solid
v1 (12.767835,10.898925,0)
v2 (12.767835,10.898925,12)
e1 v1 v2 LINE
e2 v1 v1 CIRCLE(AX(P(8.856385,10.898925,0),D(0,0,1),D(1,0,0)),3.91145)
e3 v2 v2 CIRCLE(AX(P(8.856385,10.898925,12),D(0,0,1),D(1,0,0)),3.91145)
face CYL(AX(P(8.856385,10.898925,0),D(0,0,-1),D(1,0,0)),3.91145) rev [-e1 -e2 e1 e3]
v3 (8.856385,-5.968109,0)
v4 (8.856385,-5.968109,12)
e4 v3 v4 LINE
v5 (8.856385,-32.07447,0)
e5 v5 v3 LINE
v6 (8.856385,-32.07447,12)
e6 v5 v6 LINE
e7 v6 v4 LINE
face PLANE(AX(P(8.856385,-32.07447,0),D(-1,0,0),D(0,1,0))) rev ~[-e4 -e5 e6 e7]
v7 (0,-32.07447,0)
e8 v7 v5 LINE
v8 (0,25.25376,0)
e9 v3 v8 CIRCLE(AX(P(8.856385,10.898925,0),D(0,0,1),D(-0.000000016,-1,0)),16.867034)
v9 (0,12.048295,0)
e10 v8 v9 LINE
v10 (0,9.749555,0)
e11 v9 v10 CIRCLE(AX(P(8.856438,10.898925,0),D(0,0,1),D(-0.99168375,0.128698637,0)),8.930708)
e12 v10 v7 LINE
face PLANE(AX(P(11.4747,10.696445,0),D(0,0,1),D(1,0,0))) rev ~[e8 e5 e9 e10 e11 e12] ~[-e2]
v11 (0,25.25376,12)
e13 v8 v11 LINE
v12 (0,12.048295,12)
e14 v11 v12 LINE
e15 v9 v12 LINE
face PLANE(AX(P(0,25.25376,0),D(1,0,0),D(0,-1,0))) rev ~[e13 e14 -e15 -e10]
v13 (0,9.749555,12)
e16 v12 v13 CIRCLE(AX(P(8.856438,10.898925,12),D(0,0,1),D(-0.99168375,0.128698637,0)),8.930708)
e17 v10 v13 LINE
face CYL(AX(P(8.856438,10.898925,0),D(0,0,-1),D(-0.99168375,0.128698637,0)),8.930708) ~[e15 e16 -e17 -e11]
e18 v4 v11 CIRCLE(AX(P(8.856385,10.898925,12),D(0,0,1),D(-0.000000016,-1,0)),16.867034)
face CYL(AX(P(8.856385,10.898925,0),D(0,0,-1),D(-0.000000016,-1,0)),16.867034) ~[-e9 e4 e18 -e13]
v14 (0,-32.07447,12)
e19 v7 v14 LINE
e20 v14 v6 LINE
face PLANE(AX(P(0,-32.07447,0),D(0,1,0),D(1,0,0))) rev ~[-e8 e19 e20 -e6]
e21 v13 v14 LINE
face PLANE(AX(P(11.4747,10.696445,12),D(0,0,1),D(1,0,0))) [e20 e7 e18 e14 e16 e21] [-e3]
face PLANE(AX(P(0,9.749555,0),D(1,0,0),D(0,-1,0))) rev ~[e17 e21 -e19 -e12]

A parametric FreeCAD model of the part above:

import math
import FreeCAD as App
import Part
import Sketcher

V = App.Vector

doc = App.newDocument("Part")
body = doc.addObject("PartDesign::Body", "Body")

sketch1 = doc.addObject("Sketcher::SketchObject", "Sketch")
body.addObject(sketch1)
sketch1.AttachmentSupport = (doc.XY_Plane, [""])
sketch1.MapMode = "FlatFace"
sketch1.addGeometry([
    Part.ArcOfCircle(Part.Circle(V(8.856385, 10.898925, 0), V(0, 0, 1), 16.867034), math.radians(-90.000001), math.radians(121.673002)),
    Part.LineSegment(V(0, 25.25376, 0), V(0, 12.048295, 0)),
    Part.ArcOfCircle(Part.Circle(V(8.856438, 10.898925, 0), V(0, 0, 1), 8.930708), math.radians(172.605602), math.radians(187.394398)),
    Part.LineSegment(V(0, 9.749555, 0), V(0, -32.07447, 0)),
    Part.LineSegment(V(0, -32.07447, 0), V(8.856385, -32.07447, 0)),
    Part.LineSegment(V(8.856385, -32.07447, 0), V(8.856385, -5.968109, 0)),
    Part.Circle(V(8.856385, 10.898925, 0), V(0, 0, 1), 3.91145),
], False)
sketch1.addConstraint([
    Sketcher.Constraint("Coincident", 0, 2, 1, 1),
    Sketcher.Constraint("Coincident", 1, 2, 2, 1),
    Sketcher.Constraint("Coincident", 2, 2, 3, 1),
    Sketcher.Constraint("Coincident", 3, 2, 4, 1),
    Sketcher.Constraint("Coincident", 4, 2, 5, 1),
    Sketcher.Constraint("Coincident", 5, 2, 0, 1),
    Sketcher.Constraint("Vertical", 1),
    Sketcher.Constraint("Vertical", 3),
    Sketcher.Constraint("Horizontal", 4),
    Sketcher.Constraint("Vertical", 5),
    Sketcher.Constraint("Coincident", 6, 3, 0, 3),
    Sketcher.Constraint("PointOnObject", 0, 2, -2),
    Sketcher.Constraint("PointOnObject", 2, 2, -2),
    Sketcher.Constraint("Horizontal", 0, 3, 2, 3),
    Sketcher.Constraint("Vertical", 6, 3, 4, 2),
    Sketcher.Constraint("Diameter", 6, 7.8229),
    Sketcher.Constraint("Radius", 2, 8.930708),
    Sketcher.Constraint("Radius", 0, 16.867034),
    Sketcher.Constraint("DistanceY", 5, 1, 5, 2, 26.106361),
    Sketcher.Constraint("DistanceX", 4, 1, 4, 2, 8.856385),
    Sketcher.Constraint("DistanceY", 1, 2, 1, 1, 13.205465),
    Sketcher.Constraint("DistanceY", -1, 1, 0, 2, 25.25376),
])
pad1 = doc.addObject("PartDesign::Pad", "Pad")
body.addObject(pad1)
pad1.Profile = sketch1
pad1.Length = 12

doc.recompute()
